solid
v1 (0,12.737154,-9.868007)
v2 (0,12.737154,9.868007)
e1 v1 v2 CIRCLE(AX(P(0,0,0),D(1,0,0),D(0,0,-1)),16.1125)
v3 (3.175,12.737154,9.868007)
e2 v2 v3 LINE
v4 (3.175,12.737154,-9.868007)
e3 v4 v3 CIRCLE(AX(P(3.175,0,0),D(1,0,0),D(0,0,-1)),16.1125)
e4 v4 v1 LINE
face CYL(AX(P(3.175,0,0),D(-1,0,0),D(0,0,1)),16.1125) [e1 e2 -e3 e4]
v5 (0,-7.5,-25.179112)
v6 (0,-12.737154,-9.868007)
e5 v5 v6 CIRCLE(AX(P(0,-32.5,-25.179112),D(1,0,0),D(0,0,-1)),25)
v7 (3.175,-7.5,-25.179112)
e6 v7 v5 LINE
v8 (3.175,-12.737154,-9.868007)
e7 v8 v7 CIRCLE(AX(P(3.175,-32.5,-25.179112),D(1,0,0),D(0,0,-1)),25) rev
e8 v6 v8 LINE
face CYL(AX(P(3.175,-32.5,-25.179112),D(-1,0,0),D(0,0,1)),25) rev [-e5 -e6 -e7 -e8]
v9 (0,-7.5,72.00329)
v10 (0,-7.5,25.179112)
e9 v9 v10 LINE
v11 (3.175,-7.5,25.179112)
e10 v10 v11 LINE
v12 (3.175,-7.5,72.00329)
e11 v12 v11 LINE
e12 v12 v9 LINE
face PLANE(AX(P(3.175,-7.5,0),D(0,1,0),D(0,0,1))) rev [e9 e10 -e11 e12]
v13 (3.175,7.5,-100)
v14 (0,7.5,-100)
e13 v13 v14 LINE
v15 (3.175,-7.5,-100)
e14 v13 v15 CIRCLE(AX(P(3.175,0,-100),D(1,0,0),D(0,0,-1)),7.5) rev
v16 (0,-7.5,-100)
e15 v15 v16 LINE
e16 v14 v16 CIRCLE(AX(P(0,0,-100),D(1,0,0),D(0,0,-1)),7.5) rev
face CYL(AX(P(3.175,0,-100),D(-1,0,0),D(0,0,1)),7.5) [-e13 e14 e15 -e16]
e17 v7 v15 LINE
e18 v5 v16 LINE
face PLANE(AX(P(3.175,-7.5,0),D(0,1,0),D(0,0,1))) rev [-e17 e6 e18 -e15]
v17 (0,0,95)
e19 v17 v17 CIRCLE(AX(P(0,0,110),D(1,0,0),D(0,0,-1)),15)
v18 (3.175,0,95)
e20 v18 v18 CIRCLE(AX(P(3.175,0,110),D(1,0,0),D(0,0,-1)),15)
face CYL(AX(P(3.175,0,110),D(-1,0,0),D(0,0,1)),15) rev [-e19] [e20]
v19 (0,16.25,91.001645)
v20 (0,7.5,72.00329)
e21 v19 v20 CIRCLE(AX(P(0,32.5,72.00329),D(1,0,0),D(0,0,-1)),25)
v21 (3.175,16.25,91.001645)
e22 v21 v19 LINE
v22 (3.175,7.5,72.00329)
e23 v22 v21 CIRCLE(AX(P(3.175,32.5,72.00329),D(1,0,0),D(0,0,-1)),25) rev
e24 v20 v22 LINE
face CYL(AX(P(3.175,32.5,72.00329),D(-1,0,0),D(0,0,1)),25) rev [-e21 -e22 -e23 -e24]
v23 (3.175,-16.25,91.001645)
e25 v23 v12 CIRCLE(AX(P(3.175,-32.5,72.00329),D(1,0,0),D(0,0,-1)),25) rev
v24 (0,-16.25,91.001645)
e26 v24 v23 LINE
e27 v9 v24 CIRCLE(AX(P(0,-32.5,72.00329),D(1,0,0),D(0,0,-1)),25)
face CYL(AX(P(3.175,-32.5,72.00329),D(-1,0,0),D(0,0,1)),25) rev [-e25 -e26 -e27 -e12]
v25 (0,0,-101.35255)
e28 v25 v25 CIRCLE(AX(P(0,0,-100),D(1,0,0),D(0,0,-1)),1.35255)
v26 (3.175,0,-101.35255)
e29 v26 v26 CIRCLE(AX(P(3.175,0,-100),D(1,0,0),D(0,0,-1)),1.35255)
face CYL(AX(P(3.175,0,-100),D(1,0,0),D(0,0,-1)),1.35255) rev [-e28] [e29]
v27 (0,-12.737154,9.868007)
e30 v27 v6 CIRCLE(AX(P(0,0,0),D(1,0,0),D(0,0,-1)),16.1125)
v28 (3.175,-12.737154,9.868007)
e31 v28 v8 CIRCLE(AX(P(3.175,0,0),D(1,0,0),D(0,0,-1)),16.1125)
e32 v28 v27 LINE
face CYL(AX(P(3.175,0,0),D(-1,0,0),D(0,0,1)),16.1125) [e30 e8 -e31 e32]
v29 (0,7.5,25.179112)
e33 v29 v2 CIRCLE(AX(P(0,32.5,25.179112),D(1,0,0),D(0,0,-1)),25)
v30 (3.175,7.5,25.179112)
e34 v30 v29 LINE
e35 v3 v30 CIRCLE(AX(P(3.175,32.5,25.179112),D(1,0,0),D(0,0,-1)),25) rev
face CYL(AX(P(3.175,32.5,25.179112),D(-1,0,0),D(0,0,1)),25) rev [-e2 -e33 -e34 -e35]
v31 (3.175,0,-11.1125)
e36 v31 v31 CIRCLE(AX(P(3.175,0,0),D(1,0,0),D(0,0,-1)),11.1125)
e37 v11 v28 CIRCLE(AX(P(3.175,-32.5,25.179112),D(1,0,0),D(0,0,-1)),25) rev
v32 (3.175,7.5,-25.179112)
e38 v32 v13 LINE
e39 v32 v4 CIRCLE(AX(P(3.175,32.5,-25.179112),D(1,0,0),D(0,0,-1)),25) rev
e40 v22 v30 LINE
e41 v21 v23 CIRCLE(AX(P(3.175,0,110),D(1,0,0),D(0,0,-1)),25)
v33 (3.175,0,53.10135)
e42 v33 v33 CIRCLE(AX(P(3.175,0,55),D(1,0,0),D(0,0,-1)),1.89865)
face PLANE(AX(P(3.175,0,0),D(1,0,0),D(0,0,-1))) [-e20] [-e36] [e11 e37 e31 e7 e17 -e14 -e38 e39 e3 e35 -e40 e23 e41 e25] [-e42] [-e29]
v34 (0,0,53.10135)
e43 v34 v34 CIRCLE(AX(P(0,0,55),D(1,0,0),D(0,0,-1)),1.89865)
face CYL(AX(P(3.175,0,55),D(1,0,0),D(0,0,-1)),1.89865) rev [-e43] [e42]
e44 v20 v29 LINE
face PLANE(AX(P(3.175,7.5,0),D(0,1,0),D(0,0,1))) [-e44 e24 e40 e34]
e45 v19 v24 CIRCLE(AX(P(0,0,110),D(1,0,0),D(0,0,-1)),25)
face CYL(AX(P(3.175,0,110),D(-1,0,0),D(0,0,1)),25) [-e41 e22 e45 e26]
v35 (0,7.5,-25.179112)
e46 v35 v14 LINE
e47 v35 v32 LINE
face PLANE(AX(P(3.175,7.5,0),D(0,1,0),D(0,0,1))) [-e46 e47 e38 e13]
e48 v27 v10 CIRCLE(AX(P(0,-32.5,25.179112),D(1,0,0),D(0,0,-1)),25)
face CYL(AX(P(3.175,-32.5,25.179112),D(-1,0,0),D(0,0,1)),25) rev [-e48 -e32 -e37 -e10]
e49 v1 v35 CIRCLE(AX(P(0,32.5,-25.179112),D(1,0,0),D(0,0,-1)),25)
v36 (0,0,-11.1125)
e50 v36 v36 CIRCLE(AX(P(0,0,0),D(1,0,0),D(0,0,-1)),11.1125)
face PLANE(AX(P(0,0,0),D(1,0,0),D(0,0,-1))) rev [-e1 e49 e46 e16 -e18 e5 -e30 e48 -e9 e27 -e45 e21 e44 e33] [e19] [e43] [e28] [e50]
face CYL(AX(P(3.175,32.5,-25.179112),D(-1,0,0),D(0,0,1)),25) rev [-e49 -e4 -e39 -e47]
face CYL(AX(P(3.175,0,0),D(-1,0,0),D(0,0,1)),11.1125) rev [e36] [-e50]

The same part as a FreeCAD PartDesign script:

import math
import FreeCAD as App
import Part
import Sketcher
from FreeCAD import Vector
Q = App.Units.Quantity


def edges_at(feature, points):
    """Names of the edges that pass closest to the given points."""
    edges = feature.Shape.Edges
    near = lambda p: min(range(len(edges)), key=lambda i: edges[i].distToShape(Part.Vertex(*p))[0])
    return sorted({f"Edge{near(p) + 1}" for p in points})

doc = App.newDocument("Part")
body = doc.addObject("PartDesign::Body", "Body")

sketch1 = body.newObject("Sketcher::SketchObject", "Sketch")
sketch1.AttachmentSupport = (doc.getObject("YZ_Plane"), [""])
sketch1.MapMode = "FlatFace"
sketch1.addGeometry([
    Part.ArcOfCircle(Part.Circle(Vector(0, 110, 0), Vector(0, 0, 1), 25), math.radians(-73), math.radians(253)),
    Part.LineSegment(Vector(-8, 86, 0), Vector(-8, 14, 0)),
    Part.ArcOfCircle(Part.Circle(Vector(0, 0, 0), Vector(0, 0, 1), 16), math.radians(118), math.radians(242)),
    Part.LineSegment(Vector(-8, -14, 0), Vector(-8, -100, 0)),
    Part.ArcOfCircle(Part.Circle(Vector(0, -100, 0), Vector(0, 0, 1), 8), math.radians(180), math.radians(360)),
    Part.LineSegment(Vector(8, -100, 0), Vector(8, -14, 0)),
    Part.ArcOfCircle(Part.Circle(Vector(0, 0, 0), Vector(0, 0, 1), 16), math.radians(-62), math.radians(62)),
    Part.LineSegment(Vector(8, 14, 0), Vector(8, 86, 0)),
    Part.Circle(Vector(0, 110, 0), Vector(0, 0, 1), 15),
    Part.Circle(Vector(0, 0, 0), Vector(0, 0, 1), 11),
], False)
sketch1.addConstraint([
    Sketcher.Constraint("Coincident", 0, 2, 1, 1),
    Sketcher.Constraint("Coincident", 1, 2, 2, 1),
    Sketcher.Constraint("Coincident", 2, 2, 3, 1),
    Sketcher.Constraint("Tangent", 3, 2, 4, 1),
    Sketcher.Constraint("Tangent", 4, 2, 5, 1),
    Sketcher.Constraint("Coincident", 5, 2, 6, 1),
    Sketcher.Constraint("Coincident", 6, 2, 7, 1),
    Sketcher.Constraint("Coincident", 7, 2, 0, 1),
    Sketcher.Constraint("Vertical", 1),
    Sketcher.Constraint("Vertical", 3),
    Sketcher.Constraint("Vertical", 5),
    Sketcher.Constraint("Vertical", 7),
    Sketcher.Constraint("Coincident", 2, 3, -1, 1),
    Sketcher.Constraint("Coincident", 6, 3, -1, 1),
    Sketcher.Constraint("Coincident", 9, 3, -1, 1),
    Sketcher.Constraint("Coincident", 8, 3, 0, 3),
    Sketcher.Constraint("Equal", 2, 6),
    Sketcher.Constraint("Symmetric", 0, 2, 7, 2, -2),
    Sketcher.Constraint("PointOnObject", 4, 3, -2),
    Sketcher.Constraint("Vertical", 1, 2, 2, 2),
    Sketcher.Constraint("Diameter", 8, Q("30 mm")),
    Sketcher.Constraint("Radius", 0, Q("25 mm")),
    Sketcher.Constraint("Radius", 4, Q("7.5 mm")),
    Sketcher.Constraint("Diameter", 9, Q("22.225 mm")),
    Sketcher.Constraint("DistanceY", -1, 1, 0, 3, Q("110 mm")),
    Sketcher.Constraint("DistanceY", 4, 3, -1, 1, Q("100 mm")),
    Sketcher.Constraint("Radius", 2, Q("16.1125 mm")),
])
pad1 = body.newObject("PartDesign::Pad", "Pad")
pad1.Profile = sketch1
pad1.Length = 3.175

sketch2 = body.newObject("Sketcher::SketchObject", "Sketch001")
sketch2.AttachmentSupport = (doc.getObject("YZ_Plane"), [""])
sketch2.MapMode = "FlatFace"
sketch2.AttachmentOffset = App.Placement(Vector(0, 0, 3.175), App.Rotation())
sketch2.addGeometry(Part.Circle(Vector(0, 55, 0), Vector(0, 0, 1), 1.9), False)
sketch2.addConstraint([
    Sketcher.Constraint("PointOnObject", 0, 3, -2),
    Sketcher.Constraint("DistanceY", -1, 1, 0, 3, Q("55 mm")),
    Sketcher.Constraint("Diameter", 0, Q("3.7973 mm")),
])
doc.recompute()
hole = body.newObject("PartDesign::Hole", "Hole")
hole.Profile = sketch2
hole.ThreadType = "None"
hole.Diameter = 3.7973
hole.DepthType = "ThroughAll"

sketch3 = body.newObject("Sketcher::SketchObject", "Sketch002")
sketch3.AttachmentSupport = (doc.getObject("YZ_Plane"), [""])
sketch3.MapMode = "FlatFace"
sketch3.AttachmentOffset = App.Placement(Vector(0, 0, 3.175), App.Rotation())
sketch3.addGeometry(Part.Circle(Vector(0, -100, 0), Vector(0, 0, 1), 1.4), False)
sketch3.addConstraint([
    Sketcher.Constraint("PointOnObject", 0, 3, -2),
    Sketcher.Constraint("DistanceY", 0, 3, -1, 1, Q("100 mm")),
    Sketcher.Constraint("Diameter", 0, Q("2.7051 mm")),
])
doc.recompute()
hole2 = body.newObject("PartDesign::Hole", "Hole001")
hole2.Profile = sketch3
hole2.ThreadType = "None"
hole2.Diameter = 2.7051
hole2.DepthType = "ThroughAll"
doc.recompute()

fillet = body.newObject("PartDesign::Fillet", "Fillet")
fillet.Base = (hole2, edges_at(hole2, [
    (1.587, 7.5, 86.152),
    (1.587, 7.5, 14.261),
    (1.587, 7.5, -14.261),
    (1.587, -7.5, -14.261),
    (1.587, -7.5, 14.261),
    (1.587, -7.5, 86.152),
]))
fillet.Radius = 25

doc.recompute()
